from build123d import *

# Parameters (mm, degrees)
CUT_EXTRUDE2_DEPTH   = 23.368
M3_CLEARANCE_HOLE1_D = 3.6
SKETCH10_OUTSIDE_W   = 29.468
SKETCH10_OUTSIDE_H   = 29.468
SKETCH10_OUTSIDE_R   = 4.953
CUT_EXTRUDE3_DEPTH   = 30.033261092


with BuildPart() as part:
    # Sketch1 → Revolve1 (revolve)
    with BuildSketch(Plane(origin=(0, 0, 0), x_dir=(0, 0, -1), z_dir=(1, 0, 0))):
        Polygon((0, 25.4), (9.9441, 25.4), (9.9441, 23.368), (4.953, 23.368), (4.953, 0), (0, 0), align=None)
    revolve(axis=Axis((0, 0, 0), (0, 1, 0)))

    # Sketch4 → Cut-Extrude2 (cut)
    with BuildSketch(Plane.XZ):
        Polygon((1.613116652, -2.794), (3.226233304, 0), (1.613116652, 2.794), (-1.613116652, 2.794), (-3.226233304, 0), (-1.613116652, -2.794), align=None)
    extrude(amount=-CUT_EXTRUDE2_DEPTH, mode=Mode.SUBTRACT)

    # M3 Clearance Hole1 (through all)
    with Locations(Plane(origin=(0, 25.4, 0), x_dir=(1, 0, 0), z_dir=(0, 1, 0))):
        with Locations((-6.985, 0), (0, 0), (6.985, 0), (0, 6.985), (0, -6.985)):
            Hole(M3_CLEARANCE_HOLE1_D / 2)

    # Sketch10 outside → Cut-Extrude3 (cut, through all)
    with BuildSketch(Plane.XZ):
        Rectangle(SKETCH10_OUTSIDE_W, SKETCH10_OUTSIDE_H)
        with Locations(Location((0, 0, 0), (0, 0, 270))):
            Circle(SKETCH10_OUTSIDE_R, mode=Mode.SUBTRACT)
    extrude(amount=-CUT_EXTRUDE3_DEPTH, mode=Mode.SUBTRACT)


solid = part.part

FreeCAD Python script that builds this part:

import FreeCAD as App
import Part
import Sketcher
from FreeCAD import Vector
Q = App.Units.Quantity


def add_polygon(sketch, points):
    """Adds a closed chain of lines whose ends are joined by coincident constraints."""
    first, n = sketch.GeometryCount, len(points)
    for a, b in zip(points, points[1:] + points[:1]):
        sketch.addGeometry(Part.LineSegment(App.Vector(*a, 0), App.Vector(*b, 0)), False)
    for i in range(n):
        sketch.addConstraint(Sketcher.Constraint("Coincident", first + i, 2, first + (i + 1) % n, 1))

doc = App.newDocument("Part")
body = doc.addObject("PartDesign::Body", "Body")

# Sketch on YZ plane
sketch1 = doc.addObject("Sketcher::SketchObject", "Sketch")
body.addObject(sketch1)
sketch1.AttachmentSupport = (doc.YZ_Plane, [""])
sketch1.MapMode = "FlatFace"
add_polygon(sketch1, [(25.4, -9.9), (25.4, 0), (0, 0), (0, -5), (23.4, -5), (23.4, -9.9)])  # lines 0-5
sketch1.addConstraint(Sketcher.Constraint("Vertical", 0))
sketch1.addConstraint(Sketcher.Constraint("Horizontal", 1))
sketch1.addConstraint(Sketcher.Constraint("Vertical", 2))
sketch1.addConstraint(Sketcher.Constraint("Horizontal", 3))
sketch1.addConstraint(Sketcher.Constraint("Vertical", 4))
sketch1.addConstraint(Sketcher.Constraint("Horizontal", 5))
sketch1.addConstraint(Sketcher.Constraint("Coincident", 1, 2, -1, 1))
sketch1.addConstraint(Sketcher.Constraint("DistanceX", 1, 2, 1, 1, Q("1 in")))
sketch1.addConstraint(Sketcher.Constraint("DistanceX", 3, 1, 3, 2, Q("0.92 in")))
sketch1.addConstraint(Sketcher.Constraint("DistanceY", 2, 2, 2, 1, Q("0.195 in")))
sketch1.addConstraint(Sketcher.Constraint("DistanceY", 0, 1, 0, 2, Q("0.3915 in")))
revolution = doc.addObject("PartDesign::Revolution", "Revolution")
body.addObject(revolution)
revolution.Profile = sketch1
revolution.ReferenceAxis = (sketch1, ["H_Axis"])
revolution.Angle = 360

# Sketch on XZ plane
sketch2 = doc.addObject("Sketcher::SketchObject", "Sketch001")
body.addObject(sketch2)
sketch2.AttachmentSupport = (doc.XZ_Plane, [""])
sketch2.MapMode = "FlatFace"
add_polygon(sketch2, [(1.6, -2.8), (3.2, 0), (1.6, 2.8), (-1.6, 2.8), (-3.2, 0), (-1.6, -2.8)])  # lines 0-5
sketch2.addConstraint(Sketcher.Constraint("Horizontal", 2))
sketch2.addConstraint(Sketcher.Constraint("Horizontal", 5))
sketch2.addConstraint(Sketcher.Constraint("Symmetric", 0, 2, 3, 2, -1, 1))
sketch2.addConstraint(Sketcher.Constraint("Symmetric", 1, 2, 4, 2, -1, 1))
sketch2.addConstraint(Sketcher.Constraint("PointOnObject", 0, 2, -1))
sketch2.addConstraint(Sketcher.Constraint("Parallel", 0, 3))
sketch2.addConstraint(Sketcher.Constraint("Vertical", 2, 2, 4, 2))
sketch2.addConstraint(Sketcher.Constraint("Angle", 0, Q("60 deg")))
sketch2.addConstraint(Sketcher.Constraint("DistanceY", -1, 1, 1, 2, Q("0.11 in")))
sketch2.addConstraint(Sketcher.Constraint("DistanceX", 2, 2, 2, 1, 3.226233))
pocket1 = doc.addObject("PartDesign::Pocket", "Pocket")
body.addObject(pocket1)
pocket1.Profile = sketch2
pocket1.Length = Q("0.92 in")

# Sketch on XZ plane
sketch3 = doc.addObject("Sketcher::SketchObject", "Sketch002")
body.addObject(sketch3)
sketch3.AttachmentSupport = (doc.XZ_Plane, [""])
sketch3.MapMode = "FlatFace"
sketch3.AttachmentOffset = App.Placement(Vector(0, 0, -1 * 25.4), App.Rotation())
sketch3.addGeometry(Part.Circle(Vector(-7, 0, 0), Vector(0, 0, 1), 1.8), False)
sketch3.addGeometry(Part.Circle(Vector(0, 0, 0), Vector(0, 0, 1), 1.8), False)
sketch3.addGeometry(Part.Circle(Vector(7, 0, 0), Vector(0, 0, 1), 1.8), False)
sketch3.addGeometry(Part.Circle(Vector(0, -7, 0), Vector(0, 0, 1), 1.8), False)
sketch3.addGeometry(Part.Circle(Vector(0, 7, 0), Vector(0, 0, 1), 1.8), False)
sketch3.addConstraint(Sketcher.Constraint("Coincident", 1, 3, -1, 1))
sketch3.addConstraint(Sketcher.Constraint("Equal", 0, 1))
sketch3.addConstraint(Sketcher.Constraint("Equal", 1, 2))
sketch3.addConstraint(Sketcher.Constraint("Equal", 2, 3))
sketch3.addConstraint(Sketcher.Constraint("Equal", 3, 4))
sketch3.addConstraint(Sketcher.Constraint("Symmetric", 0, 3, 2, 3, -1, 1))
sketch3.addConstraint(Sketcher.Constraint("Symmetric", 3, 3, 4, 3, -1, 1))
sketch3.addConstraint(Sketcher.Constraint("PointOnObject", 0, 3, -1))
sketch3.addConstraint(Sketcher.Constraint("PointOnObject", 3, 3, -2))
sketch3.addConstraint(Sketcher.Constraint("Diameter", 0, 3.6))
sketch3.addConstraint(Sketcher.Constraint("DistanceX", 0, 3, 2, 3, Q("0.55 in")))
sketch3.addConstraint(Sketcher.Constraint("DistanceY", 3, 3, 4, 3, Q("0.55 in")))
doc.recompute()
hole = doc.addObject("PartDesign::Hole", "Hole")
body.addObject(hole)
hole.Profile = sketch3
hole.ThreadType = "None"
hole.Diameter = 3.6
hole.DepthType = "ThroughAll"
hole.Reversed = True

# Sketch on XZ plane
sketch4 = doc.addObject("Sketcher::SketchObject", "Sketch003")
body.addObject(sketch4)
sketch4.AttachmentSupport = (doc.XZ_Plane, [""])
sketch4.MapMode = "FlatFace"
add_polygon(sketch4, [(-14.7, 14.7), (-14.7, -14.7), (14.7, -14.7), (14.7, 14.7)])  # lines 0-3
sketch4.addGeometry(Part.Circle(Vector(0, 0, 0), Vector(0, 0, 1), 5), False)  # 4
sketch4.addConstraint(Sketcher.Constraint("Vertical", 0))
sketch4.addConstraint(Sketcher.Constraint("Horizontal", 1))
sketch4.addConstraint(Sketcher.Constraint("Vertical", 2))
sketch4.addConstraint(Sketcher.Constraint("Horizontal", 3))
sketch4.addConstraint(Sketcher.Constraint("Coincident", 4, 3, -1, 1))
sketch4.addConstraint(Sketcher.Constraint("Symmetric", 0, 2, 2, 2, -1, 1))
sketch4.addConstraint(Sketcher.Constraint("Equal", 3, 0))
sketch4.addConstraint(Sketcher.Constraint("Diameter", 4, Q("0.39 in")))
sketch4.addConstraint(Sketcher.Constraint("DistanceX", 1, 1, 1, 2, 29.468))
pocket2 = doc.addObject("PartDesign::Pocket", "Pocket001")
body.addObject(pocket2)
pocket2.Profile = sketch4
pocket2.Type = "ThroughAll"

doc.recompute()
